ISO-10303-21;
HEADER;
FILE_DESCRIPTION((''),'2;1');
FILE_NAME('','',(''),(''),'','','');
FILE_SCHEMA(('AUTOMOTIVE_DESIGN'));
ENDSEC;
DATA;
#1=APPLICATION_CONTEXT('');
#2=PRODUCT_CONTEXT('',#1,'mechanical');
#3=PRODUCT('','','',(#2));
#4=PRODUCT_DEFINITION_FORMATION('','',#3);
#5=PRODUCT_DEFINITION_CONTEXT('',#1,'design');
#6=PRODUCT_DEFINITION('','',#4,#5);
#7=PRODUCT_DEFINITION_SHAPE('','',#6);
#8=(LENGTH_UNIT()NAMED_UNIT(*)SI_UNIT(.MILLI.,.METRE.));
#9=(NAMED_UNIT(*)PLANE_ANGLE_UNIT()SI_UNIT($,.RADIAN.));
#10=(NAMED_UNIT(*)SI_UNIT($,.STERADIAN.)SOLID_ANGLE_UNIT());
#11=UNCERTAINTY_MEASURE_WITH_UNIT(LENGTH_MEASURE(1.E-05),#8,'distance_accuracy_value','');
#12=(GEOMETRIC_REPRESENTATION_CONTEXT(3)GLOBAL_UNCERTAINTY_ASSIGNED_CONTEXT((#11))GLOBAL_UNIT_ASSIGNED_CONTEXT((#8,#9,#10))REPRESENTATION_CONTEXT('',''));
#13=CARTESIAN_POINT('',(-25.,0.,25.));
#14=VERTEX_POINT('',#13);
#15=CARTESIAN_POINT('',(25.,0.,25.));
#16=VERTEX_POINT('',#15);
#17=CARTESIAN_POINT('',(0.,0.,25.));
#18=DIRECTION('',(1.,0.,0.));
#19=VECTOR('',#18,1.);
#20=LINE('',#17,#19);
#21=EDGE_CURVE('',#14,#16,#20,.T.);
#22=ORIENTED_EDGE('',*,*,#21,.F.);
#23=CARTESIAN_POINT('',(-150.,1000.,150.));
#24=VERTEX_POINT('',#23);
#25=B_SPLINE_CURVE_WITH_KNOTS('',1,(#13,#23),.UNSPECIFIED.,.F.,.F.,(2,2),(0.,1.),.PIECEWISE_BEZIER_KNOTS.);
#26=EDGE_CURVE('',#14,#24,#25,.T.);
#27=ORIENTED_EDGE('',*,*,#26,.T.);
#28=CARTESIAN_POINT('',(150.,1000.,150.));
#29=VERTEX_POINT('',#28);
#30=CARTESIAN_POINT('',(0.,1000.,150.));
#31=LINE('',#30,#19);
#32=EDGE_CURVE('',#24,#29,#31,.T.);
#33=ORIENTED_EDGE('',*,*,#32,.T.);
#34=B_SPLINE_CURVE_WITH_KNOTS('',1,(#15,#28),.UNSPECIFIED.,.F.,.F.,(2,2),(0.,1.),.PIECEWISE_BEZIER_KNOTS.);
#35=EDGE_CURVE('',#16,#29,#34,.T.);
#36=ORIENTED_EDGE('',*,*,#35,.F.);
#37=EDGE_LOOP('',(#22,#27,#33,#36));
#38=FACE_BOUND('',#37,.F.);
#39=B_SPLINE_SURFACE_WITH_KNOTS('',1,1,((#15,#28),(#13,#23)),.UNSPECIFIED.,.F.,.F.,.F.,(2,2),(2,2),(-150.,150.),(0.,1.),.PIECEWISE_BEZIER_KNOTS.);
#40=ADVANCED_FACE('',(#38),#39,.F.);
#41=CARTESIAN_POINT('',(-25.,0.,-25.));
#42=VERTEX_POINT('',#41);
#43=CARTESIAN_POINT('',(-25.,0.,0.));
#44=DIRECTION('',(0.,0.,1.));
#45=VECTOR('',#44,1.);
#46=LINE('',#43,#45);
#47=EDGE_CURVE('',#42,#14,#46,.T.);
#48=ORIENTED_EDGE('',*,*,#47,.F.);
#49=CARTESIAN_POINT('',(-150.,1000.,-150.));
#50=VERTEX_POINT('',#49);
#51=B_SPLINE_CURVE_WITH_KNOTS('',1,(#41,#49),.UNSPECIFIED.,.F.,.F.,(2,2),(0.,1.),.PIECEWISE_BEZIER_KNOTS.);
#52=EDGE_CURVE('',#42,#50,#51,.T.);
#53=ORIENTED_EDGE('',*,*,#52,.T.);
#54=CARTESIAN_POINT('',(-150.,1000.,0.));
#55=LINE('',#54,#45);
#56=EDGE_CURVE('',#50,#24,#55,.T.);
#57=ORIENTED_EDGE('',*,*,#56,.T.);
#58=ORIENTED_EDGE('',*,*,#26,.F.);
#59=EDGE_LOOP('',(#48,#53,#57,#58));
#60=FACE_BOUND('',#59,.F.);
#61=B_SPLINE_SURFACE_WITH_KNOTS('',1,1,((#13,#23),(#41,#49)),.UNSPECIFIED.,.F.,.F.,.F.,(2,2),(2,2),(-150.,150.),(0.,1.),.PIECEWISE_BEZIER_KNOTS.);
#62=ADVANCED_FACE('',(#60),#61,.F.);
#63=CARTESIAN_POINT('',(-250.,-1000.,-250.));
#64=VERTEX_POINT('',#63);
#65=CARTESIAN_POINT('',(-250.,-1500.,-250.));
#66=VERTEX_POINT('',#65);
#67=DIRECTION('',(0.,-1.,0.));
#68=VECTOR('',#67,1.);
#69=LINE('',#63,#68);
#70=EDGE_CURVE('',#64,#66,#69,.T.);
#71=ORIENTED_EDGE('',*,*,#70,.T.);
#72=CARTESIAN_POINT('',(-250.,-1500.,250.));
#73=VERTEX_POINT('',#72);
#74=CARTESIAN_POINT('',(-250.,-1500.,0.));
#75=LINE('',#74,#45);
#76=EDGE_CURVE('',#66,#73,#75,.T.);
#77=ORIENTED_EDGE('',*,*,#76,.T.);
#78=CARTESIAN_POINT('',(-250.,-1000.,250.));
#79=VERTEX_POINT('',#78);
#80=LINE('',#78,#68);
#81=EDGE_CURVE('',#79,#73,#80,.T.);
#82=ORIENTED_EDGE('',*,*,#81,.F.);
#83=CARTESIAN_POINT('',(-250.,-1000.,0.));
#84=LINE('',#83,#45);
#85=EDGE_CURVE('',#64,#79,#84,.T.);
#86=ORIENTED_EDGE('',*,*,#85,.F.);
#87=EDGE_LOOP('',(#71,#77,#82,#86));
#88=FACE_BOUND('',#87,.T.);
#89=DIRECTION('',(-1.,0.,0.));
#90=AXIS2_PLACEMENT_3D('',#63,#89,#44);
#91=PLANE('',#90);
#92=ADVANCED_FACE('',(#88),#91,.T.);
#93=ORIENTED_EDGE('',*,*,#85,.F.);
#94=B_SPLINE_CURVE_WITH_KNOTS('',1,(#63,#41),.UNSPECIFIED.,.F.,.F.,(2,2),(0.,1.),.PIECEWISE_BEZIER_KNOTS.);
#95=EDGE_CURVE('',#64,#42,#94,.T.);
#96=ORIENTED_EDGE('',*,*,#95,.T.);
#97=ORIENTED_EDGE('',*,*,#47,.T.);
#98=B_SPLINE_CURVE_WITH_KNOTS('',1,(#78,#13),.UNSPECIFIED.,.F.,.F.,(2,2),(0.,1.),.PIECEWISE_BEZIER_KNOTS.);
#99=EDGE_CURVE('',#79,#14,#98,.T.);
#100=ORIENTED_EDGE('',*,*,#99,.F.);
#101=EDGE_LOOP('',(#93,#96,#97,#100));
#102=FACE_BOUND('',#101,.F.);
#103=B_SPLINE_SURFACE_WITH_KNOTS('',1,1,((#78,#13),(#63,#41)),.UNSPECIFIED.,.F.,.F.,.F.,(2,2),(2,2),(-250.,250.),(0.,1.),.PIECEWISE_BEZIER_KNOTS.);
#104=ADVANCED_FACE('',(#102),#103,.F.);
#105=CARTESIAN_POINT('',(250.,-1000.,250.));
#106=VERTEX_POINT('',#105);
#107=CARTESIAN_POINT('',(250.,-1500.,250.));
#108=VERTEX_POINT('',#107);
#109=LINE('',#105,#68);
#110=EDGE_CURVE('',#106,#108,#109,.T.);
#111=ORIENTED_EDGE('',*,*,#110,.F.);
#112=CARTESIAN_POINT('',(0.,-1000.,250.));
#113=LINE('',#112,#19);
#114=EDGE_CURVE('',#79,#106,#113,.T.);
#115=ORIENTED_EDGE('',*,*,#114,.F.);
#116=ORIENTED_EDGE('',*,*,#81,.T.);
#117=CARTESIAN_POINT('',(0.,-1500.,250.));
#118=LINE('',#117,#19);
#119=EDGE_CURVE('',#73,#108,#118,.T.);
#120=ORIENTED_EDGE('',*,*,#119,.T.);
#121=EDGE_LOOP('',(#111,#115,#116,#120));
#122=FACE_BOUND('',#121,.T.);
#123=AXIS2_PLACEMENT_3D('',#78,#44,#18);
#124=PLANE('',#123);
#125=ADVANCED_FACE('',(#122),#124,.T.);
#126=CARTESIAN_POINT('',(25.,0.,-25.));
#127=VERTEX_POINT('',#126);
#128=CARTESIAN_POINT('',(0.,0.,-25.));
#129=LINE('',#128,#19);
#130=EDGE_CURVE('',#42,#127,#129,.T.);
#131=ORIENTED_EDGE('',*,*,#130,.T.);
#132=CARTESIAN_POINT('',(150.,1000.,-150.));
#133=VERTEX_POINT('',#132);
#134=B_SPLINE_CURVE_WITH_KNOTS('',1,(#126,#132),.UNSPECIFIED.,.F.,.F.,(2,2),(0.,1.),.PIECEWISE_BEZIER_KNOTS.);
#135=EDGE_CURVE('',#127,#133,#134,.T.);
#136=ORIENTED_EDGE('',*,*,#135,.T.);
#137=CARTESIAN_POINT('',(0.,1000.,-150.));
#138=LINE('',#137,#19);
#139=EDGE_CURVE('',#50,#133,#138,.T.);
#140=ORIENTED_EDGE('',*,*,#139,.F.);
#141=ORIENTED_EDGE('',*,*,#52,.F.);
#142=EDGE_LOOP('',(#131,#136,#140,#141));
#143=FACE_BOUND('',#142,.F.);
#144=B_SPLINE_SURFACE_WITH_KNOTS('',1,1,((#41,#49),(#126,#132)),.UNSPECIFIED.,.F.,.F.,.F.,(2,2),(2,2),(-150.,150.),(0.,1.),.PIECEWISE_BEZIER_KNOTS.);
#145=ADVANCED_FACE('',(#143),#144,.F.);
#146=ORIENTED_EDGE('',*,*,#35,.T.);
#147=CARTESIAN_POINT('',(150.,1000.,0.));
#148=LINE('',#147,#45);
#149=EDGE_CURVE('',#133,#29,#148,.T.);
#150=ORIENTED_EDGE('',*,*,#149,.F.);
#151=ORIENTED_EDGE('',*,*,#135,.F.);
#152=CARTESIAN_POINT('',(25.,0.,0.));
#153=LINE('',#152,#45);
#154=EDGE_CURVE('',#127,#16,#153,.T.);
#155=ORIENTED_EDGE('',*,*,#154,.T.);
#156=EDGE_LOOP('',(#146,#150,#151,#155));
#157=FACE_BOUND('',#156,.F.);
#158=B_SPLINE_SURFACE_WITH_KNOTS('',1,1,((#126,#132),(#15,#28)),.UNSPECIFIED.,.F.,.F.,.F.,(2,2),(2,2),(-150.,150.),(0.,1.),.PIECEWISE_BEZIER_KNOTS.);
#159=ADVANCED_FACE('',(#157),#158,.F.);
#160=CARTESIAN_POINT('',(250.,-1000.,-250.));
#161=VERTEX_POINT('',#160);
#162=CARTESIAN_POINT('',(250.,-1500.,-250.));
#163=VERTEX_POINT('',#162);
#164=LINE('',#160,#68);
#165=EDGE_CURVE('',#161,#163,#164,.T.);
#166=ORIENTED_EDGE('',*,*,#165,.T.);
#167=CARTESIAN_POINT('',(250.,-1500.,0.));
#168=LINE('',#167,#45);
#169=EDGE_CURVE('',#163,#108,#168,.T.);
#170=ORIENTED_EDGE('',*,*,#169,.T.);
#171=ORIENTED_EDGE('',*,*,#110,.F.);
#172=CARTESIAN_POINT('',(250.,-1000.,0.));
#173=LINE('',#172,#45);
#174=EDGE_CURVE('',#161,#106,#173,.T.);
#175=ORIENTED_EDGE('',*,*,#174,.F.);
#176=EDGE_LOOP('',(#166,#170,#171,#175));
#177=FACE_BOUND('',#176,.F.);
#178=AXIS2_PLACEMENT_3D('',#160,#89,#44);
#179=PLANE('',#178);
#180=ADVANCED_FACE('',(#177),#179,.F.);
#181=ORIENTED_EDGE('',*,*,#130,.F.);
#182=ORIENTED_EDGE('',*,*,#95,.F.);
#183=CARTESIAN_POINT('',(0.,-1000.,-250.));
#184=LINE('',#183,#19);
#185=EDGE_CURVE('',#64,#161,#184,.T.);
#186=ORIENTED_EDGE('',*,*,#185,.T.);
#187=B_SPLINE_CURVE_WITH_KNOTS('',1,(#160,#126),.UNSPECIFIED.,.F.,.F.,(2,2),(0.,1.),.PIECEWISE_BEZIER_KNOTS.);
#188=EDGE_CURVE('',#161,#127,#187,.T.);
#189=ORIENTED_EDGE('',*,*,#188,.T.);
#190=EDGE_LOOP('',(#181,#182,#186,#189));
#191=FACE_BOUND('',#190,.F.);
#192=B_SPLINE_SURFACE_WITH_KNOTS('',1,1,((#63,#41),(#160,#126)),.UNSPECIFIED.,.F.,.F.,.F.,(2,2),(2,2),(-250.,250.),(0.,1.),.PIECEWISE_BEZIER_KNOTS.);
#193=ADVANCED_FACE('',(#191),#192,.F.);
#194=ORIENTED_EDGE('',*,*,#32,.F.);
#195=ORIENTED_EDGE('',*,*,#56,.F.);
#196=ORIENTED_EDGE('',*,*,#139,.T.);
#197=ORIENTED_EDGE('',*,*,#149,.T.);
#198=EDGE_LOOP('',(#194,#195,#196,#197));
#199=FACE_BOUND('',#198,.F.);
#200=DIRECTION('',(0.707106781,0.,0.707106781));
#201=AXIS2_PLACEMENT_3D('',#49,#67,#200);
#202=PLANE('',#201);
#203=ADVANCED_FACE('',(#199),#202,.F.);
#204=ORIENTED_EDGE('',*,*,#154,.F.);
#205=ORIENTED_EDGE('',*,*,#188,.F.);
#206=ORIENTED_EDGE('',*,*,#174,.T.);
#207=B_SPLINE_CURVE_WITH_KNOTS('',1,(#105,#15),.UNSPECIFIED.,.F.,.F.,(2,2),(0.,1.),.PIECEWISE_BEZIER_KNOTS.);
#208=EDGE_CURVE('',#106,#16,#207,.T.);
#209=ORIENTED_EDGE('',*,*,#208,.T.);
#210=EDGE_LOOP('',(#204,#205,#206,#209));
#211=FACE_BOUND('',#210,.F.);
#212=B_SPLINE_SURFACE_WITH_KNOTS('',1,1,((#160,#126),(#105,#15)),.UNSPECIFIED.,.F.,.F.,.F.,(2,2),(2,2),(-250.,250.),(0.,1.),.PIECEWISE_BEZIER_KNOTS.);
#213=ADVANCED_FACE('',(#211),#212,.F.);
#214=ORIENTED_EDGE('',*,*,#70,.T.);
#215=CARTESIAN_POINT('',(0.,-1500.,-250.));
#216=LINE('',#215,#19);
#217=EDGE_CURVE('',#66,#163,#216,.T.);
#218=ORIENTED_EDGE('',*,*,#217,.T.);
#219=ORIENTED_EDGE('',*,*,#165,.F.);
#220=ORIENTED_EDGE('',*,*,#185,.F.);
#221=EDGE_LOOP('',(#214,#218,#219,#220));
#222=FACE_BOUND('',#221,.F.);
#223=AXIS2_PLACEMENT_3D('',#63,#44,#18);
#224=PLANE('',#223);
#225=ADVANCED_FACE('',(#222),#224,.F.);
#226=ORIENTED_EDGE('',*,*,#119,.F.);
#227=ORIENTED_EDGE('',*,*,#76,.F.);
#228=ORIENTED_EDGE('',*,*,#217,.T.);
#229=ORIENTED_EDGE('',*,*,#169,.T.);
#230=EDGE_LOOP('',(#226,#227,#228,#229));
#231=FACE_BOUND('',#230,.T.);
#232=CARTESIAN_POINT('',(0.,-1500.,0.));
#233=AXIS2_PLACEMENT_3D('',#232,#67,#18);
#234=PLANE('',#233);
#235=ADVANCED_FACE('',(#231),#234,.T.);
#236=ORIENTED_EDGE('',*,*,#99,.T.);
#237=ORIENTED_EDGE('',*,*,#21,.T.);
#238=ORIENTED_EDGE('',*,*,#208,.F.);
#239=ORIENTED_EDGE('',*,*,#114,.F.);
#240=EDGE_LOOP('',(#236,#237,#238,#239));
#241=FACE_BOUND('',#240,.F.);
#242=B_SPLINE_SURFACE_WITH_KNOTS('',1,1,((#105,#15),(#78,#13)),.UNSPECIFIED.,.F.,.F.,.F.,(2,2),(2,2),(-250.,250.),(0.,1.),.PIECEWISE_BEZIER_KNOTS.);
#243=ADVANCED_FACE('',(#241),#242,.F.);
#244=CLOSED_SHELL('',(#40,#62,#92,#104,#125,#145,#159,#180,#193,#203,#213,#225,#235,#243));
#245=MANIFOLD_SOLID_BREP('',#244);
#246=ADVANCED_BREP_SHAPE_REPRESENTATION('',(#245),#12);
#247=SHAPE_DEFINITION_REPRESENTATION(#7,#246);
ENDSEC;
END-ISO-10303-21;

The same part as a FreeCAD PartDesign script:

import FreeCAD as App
import Part
import Sketcher

doc = App.newDocument("Part")
body = doc.addObject("PartDesign::Body", "Body")

sketch1 = body.newObject("Sketcher::SketchObject", "Sketch")
sketch1.AttachmentSupport = (doc.getObject("XZ_Plane"), [""])
sketch1.MapMode = "FlatFace"
sketch1.AttachmentOffset = App.Placement(App.Vector(0, 0, 1000), App.Rotation())
sketch1.addGeometry([
    Part.LineSegment(App.Vector(-250, 250, 0), App.Vector(-250, -250, 0)),
    Part.LineSegment(App.Vector(-250, -250, 0), App.Vector(250, -250, 0)),
    Part.LineSegment(App.Vector(250, -250, 0), App.Vector(250, 250, 0)),
    Part.LineSegment(App.Vector(250, 250, 0), App.Vector(-250, 250, 0)),
], False)
sketch1.addConstraint([
    Sketcher.Constraint("Coincident", 0, 2, 1, 1),
    Sketcher.Constraint("Coincident", 1, 2, 2, 1),
    Sketcher.Constraint("Coincident", 2, 2, 3, 1),
    Sketcher.Constraint("Coincident", 3, 2, 0, 1),
    Sketcher.Constraint("Vertical", 0),
    Sketcher.Constraint("Horizontal", 1),
    Sketcher.Constraint("Vertical", 2),
    Sketcher.Constraint("Horizontal", 3),
    Sketcher.Constraint("Symmetric", 0, 2, 2, 2, -1, 1),
    Sketcher.Constraint("Equal", 3, 0),
    Sketcher.Constraint("DistanceX", 1, 1, 1, 2, 500.0),
])

sketch2 = body.newObject("Sketcher::SketchObject", "Sketch001")
sketch2.AttachmentSupport = (doc.getObject("XZ_Plane"), [""])
sketch2.MapMode = "FlatFace"
sketch2.addGeometry([
    Part.LineSegment(App.Vector(-25, 25, 0), App.Vector(-25, -25, 0)),
    Part.LineSegment(App.Vector(-25, -25, 0), App.Vector(25, -25, 0)),
    Part.LineSegment(App.Vector(25, -25, 0), App.Vector(25, 25, 0)),
    Part.LineSegment(App.Vector(25, 25, 0), App.Vector(-25, 25, 0)),
], False)
sketch2.addConstraint([
    Sketcher.Constraint("Coincident", 0, 2, 1, 1),
    Sketcher.Constraint("Coincident", 1, 2, 2, 1),
    Sketcher.Constraint("Coincident", 2, 2, 3, 1),
    Sketcher.Constraint("Coincident", 3, 2, 0, 1),
    Sketcher.Constraint("Vertical", 0),
    Sketcher.Constraint("Horizontal", 1),
    Sketcher.Constraint("Vertical", 2),
    Sketcher.Constraint("Horizontal", 3),
    Sketcher.Constraint("Symmetric", 0, 2, 2, 2, -1, 1),
    Sketcher.Constraint("Equal", 3, 0),
    Sketcher.Constraint("DistanceX", 1, 1, 1, 2, 50.0),
])

additiveloft = body.newObject("PartDesign::AdditiveLoft", "AdditiveLoft")
additiveloft.Profile = sketch1
additiveloft.Sections = [sketch2]

sketch3 = body.newObject("Sketcher::SketchObject", "Sketch002")
sketch3.AttachmentSupport = (doc.getObject("XZ_Plane"), [""])
sketch3.MapMode = "FlatFace"
sketch3.addGeometry([
    Part.LineSegment(App.Vector(-25, 25, 0), App.Vector(-25, -25, 0)),
    Part.LineSegment(App.Vector(-25, -25, 0), App.Vector(25, -25, 0)),
    Part.LineSegment(App.Vector(25, -25, 0), App.Vector(25, 25, 0)),
    Part.LineSegment(App.Vector(25, 25, 0), App.Vector(-25, 25, 0)),
], False)
sketch3.addConstraint([
    Sketcher.Constraint("Coincident", 0, 2, 1, 1),
    Sketcher.Constraint("Coincident", 1, 2, 2, 1),
    Sketcher.Constraint("Coincident", 2, 2, 3, 1),
    Sketcher.Constraint("Coincident", 3, 2, 0, 1),
    Sketcher.Constraint("Vertical", 0),
    Sketcher.Constraint("Horizontal", 1),
    Sketcher.Constraint("Vertical", 2),
    Sketcher.Constraint("Horizontal", 3),
    Sketcher.Constraint("Symmetric", 0, 2, 2, 2, -1, 1),
    Sketcher.Constraint("Equal", 3, 0),
    Sketcher.Constraint("DistanceX", 1, 1, 1, 2, 50.0),
])

sketch4 = body.newObject("Sketcher::SketchObject", "Sketch003")
sketch4.AttachmentSupport = (doc.getObject("XZ_Plane"), [""])
sketch4.MapMode = "FlatFace"
sketch4.AttachmentOffset = App.Placement(App.Vector(0, 0, -1000), App.Rotation())
sketch4.addGeometry([
    Part.LineSegment(App.Vector(-150, 150, 0), App.Vector(-150, -150, 0)),
    Part.LineSegment(App.Vector(-150, -150, 0), App.Vector(150, -150, 0)),
    Part.LineSegment(App.Vector(150, -150, 0), App.Vector(150, 150, 0)),
    Part.LineSegment(App.Vector(150, 150, 0), App.Vector(-150, 150, 0)),
], False)
sketch4.addConstraint([
    Sketcher.Constraint("Coincident", 0, 2, 1, 1),
    Sketcher.Constraint("Coincident", 1, 2, 2, 1),
    Sketcher.Constraint("Coincident", 2, 2, 3, 1),
    Sketcher.Constraint("Coincident", 3, 2, 0, 1),
    Sketcher.Constraint("Vertical", 0),
    Sketcher.Constraint("Horizontal", 1),
    Sketcher.Constraint("Vertical", 2),
    Sketcher.Constraint("Horizontal", 3),
    Sketcher.Constraint("Symmetric", 0, 2, 2, 2, -1, 1),
    Sketcher.Constraint("Equal", 3, 0),
    Sketcher.Constraint("DistanceX", 1, 1, 1, 2, 300.0),
])

additiveloft2 = body.newObject("PartDesign::AdditiveLoft", "AdditiveLoft001")
additiveloft2.Profile = sketch3
additiveloft2.Sections = [sketch4]

sketch5 = body.newObject("Sketcher::SketchObject", "Sketch004")
sketch5.AttachmentSupport = (doc.getObject("XZ_Plane"), [""])
sketch5.MapMode = "FlatFace"
sketch5.AttachmentOffset = App.Placement(App.Vector(0, 0, 1000), App.Rotation())
sketch5.addGeometry([
    Part.LineSegment(App.Vector(-250, 250, 0), App.Vector(-250, -250, 0)),
    Part.LineSegment(App.Vector(-250, -250, 0), App.Vector(250, -250, 0)),
    Part.LineSegment(App.Vector(250, -250, 0), App.Vector(250, 250, 0)),
    Part.LineSegment(App.Vector(250, 250, 0), App.Vector(-250, 250, 0)),
], False)
sketch5.addConstraint([
    Sketcher.Constraint("Coincident", 0, 2, 1, 1),
    Sketcher.Constraint("Coincident", 1, 2, 2, 1),
    Sketcher.Constraint("Coincident", 2, 2, 3, 1),
    Sketcher.Constraint("Coincident", 3, 2, 0, 1),
    Sketcher.Constraint("Vertical", 0),
    Sketcher.Constraint("Horizontal", 1),
    Sketcher.Constraint("Vertical", 2),
    Sketcher.Constraint("Horizontal", 3),
    Sketcher.Constraint("Symmetric", 0, 2, 2, 2, -1, 1),
    Sketcher.Constraint("Equal", 3, 0),
    Sketcher.Constraint("DistanceX", 1, 1, 1, 2, 500.0),
])
pad1 = body.newObject("PartDesign::Pad", "Pad")
pad1.Profile = sketch5
pad1.Length = 500

doc.recompute()
